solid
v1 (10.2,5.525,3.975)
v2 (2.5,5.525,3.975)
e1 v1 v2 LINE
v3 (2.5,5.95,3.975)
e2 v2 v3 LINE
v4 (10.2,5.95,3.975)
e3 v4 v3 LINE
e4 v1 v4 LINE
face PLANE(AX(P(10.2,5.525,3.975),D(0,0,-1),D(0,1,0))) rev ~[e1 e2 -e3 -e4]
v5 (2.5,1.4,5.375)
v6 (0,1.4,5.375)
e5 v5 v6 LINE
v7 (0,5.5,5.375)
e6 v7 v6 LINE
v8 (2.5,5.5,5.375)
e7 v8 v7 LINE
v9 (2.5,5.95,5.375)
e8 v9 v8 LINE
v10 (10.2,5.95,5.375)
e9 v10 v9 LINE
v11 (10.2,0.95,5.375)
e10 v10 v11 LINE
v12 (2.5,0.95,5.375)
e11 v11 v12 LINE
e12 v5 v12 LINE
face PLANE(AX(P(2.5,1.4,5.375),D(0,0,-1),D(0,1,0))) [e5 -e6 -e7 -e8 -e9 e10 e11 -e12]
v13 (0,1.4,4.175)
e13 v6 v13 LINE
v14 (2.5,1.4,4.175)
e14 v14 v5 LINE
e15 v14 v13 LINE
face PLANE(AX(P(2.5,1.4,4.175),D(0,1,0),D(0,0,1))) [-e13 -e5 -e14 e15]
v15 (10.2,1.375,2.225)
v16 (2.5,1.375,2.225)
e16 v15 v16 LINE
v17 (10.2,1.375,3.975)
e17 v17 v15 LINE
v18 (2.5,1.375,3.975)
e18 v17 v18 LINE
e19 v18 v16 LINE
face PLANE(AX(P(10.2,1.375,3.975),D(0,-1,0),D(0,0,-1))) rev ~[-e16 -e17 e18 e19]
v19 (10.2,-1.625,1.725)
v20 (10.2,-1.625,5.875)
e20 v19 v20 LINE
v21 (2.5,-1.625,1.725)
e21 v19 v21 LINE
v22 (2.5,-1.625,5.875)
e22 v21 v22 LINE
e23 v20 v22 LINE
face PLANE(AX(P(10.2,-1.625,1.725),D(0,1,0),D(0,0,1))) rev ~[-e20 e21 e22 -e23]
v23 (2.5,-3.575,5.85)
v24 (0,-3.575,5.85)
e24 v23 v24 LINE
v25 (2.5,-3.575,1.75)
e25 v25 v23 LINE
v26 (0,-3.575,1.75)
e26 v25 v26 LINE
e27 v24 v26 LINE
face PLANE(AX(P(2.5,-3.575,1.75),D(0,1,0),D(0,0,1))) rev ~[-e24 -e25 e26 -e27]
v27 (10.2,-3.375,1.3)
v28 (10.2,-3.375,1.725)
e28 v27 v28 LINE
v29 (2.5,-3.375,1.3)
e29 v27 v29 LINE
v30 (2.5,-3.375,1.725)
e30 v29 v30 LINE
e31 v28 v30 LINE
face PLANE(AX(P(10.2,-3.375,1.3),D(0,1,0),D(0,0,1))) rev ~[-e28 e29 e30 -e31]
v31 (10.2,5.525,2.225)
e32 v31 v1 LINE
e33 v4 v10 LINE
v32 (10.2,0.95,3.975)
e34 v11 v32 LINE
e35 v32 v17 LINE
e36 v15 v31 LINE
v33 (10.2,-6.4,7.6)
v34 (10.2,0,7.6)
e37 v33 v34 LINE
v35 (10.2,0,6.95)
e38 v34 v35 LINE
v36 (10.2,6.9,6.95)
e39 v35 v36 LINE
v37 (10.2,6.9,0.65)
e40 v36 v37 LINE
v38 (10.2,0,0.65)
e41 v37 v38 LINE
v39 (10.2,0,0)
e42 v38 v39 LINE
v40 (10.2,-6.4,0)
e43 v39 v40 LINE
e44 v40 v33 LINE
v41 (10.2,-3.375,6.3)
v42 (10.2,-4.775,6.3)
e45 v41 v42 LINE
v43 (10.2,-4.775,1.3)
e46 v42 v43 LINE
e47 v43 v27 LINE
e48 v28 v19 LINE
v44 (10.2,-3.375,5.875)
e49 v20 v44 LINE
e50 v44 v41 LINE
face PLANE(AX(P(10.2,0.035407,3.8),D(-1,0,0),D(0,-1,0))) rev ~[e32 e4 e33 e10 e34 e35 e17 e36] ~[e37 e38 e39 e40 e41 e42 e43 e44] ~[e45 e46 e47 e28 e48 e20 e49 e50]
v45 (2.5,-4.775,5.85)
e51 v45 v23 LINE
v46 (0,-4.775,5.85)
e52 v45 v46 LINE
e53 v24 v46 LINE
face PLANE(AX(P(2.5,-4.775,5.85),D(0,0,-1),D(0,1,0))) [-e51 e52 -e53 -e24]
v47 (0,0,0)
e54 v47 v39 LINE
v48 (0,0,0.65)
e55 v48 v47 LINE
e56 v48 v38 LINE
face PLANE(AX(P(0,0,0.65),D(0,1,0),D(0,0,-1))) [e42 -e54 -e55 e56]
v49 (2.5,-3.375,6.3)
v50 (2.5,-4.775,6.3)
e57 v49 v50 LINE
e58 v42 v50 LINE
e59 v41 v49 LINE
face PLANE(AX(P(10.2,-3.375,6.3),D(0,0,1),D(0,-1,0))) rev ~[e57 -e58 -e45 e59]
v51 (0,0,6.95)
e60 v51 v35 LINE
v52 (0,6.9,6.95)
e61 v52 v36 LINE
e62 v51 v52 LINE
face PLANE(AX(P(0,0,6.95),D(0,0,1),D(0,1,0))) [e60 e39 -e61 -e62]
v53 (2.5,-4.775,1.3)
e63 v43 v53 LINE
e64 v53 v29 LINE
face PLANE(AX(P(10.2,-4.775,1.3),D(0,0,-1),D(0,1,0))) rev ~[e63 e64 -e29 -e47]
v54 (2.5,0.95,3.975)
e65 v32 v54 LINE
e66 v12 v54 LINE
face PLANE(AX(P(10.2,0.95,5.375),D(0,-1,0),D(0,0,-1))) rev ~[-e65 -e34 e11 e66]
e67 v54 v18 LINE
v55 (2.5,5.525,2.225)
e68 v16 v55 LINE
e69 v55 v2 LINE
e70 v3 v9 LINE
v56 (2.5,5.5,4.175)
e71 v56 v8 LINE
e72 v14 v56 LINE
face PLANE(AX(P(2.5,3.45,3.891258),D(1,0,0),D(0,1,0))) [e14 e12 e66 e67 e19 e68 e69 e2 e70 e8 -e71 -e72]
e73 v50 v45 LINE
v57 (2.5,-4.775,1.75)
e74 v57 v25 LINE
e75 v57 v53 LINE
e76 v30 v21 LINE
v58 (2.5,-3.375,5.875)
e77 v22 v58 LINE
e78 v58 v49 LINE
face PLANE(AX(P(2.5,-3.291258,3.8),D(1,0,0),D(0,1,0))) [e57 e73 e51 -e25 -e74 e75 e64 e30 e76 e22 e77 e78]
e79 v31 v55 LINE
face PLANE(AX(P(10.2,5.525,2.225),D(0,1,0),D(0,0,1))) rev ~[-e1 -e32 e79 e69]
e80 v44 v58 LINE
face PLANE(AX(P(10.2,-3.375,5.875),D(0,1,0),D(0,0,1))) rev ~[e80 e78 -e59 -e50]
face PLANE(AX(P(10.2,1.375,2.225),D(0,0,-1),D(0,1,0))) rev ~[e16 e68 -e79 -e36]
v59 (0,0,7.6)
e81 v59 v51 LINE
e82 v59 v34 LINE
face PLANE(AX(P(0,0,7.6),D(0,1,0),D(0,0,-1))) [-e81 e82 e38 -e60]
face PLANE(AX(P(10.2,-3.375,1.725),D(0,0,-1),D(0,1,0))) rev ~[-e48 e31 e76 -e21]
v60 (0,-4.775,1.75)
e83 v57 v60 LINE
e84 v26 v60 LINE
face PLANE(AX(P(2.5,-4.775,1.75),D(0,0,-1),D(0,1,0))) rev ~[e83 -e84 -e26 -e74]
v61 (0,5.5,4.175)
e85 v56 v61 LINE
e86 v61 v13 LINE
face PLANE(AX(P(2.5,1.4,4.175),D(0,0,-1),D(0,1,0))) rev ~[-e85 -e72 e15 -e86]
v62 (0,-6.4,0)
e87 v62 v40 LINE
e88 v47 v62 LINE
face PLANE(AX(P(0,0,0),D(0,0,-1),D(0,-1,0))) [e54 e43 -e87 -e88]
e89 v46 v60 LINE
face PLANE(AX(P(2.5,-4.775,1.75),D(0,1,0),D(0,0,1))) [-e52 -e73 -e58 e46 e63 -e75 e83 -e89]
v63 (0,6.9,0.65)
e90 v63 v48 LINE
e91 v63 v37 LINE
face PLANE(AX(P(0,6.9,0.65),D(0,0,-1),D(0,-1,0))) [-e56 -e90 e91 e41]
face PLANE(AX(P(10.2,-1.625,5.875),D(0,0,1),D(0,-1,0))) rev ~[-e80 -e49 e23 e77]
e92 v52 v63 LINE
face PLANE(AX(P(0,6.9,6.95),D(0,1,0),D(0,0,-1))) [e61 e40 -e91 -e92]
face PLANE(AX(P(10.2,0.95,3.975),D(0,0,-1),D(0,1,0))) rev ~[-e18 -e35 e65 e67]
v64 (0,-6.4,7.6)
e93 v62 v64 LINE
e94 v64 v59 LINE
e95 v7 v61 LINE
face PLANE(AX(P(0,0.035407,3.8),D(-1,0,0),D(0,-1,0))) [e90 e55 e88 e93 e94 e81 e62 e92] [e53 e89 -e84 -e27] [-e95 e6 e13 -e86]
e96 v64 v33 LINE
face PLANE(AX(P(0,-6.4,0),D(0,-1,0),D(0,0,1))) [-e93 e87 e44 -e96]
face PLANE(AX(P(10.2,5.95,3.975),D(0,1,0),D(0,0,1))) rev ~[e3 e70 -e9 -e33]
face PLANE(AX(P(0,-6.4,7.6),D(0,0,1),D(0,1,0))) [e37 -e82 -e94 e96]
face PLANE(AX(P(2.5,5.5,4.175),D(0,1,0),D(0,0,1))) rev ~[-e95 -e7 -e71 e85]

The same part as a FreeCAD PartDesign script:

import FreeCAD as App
import Part
import Sketcher
from FreeCAD import Vector


def add_polygon(sketch, points):
    """Adds a closed chain of lines whose ends are joined by coincident constraints."""
    first, n = sketch.GeometryCount, len(points)
    for a, b in zip(points, points[1:] + points[:1]):
        sketch.addGeometry(Part.LineSegment(App.Vector(*a, 0), App.Vector(*b, 0)), False)
    for i in range(n):
        sketch.addConstraint(Sketcher.Constraint("Coincident", first + i, 2, first + (i + 1) % n, 1))

doc = App.newDocument("Part")
body = doc.addObject("PartDesign::Body", "Body")

# Sketch on YZ plane
sketch1 = body.newObject("Sketcher::SketchObject", "Sketch")
sketch1.AttachmentSupport = (doc.getObject("YZ_Plane"), [""])
sketch1.MapMode = "FlatFace"
add_polygon(sketch1, [(0, 7.6), (-6.4, 7.6), (-6.4, 0), (0, 0), (0, 0.65), (6.9, 0.65), (6.9, 6.95), (0, 6.95)])  # lines 0-7
sketch1.addConstraint(Sketcher.Constraint("Horizontal", 0))
sketch1.addConstraint(Sketcher.Constraint("Vertical", 1))
sketch1.addConstraint(Sketcher.Constraint("Horizontal", 2))
sketch1.addConstraint(Sketcher.Constraint("Vertical", 3))
sketch1.addConstraint(Sketcher.Constraint("Horizontal", 4))
sketch1.addConstraint(Sketcher.Constraint("Vertical", 5))
sketch1.addConstraint(Sketcher.Constraint("Horizontal", 6))
sketch1.addConstraint(Sketcher.Constraint("Vertical", 7))
sketch1.addConstraint(Sketcher.Constraint("Coincident", 2, 2, -1, 1))
sketch1.addConstraint(Sketcher.Constraint("PointOnObject", 6, 2, -2))
sketch1.addConstraint(Sketcher.Constraint("Equal", 3, 7))
sketch1.addConstraint(Sketcher.Constraint("DistanceX", 0, 2, 0, 1, 6.4))
sketch1.addConstraint(Sketcher.Constraint("DistanceX", 4, 1, 4, 2, 6.9))
sketch1.addConstraint(Sketcher.Constraint("DistanceY", 1, 2, 1, 1, 7.6))
sketch1.addConstraint(Sketcher.Constraint("DistanceY", 5, 1, 5, 2, 6.3))
pad1 = body.newObject("PartDesign::Pad", "Pad")
pad1.Profile = sketch1
pad1.Length = 10.2

# Sketch on YZ plane
sketch2 = body.newObject("Sketcher::SketchObject", "Sketch001")
sketch2.AttachmentSupport = (doc.getObject("YZ_Plane"), [""])
sketch2.MapMode = "FlatFace"
sketch2.AttachmentOffset = App.Placement(Vector(0, 0, 10.2), App.Rotation())
add_polygon(sketch2, [(-3.375, 1.725), (-1.625, 1.725), (-1.625, 5.875), (-3.375, 5.875), (-3.375, 6.3), (-4.775, 6.3), (-4.775, 1.3), (-3.375, 1.3)])  # lines 0-7
add_polygon(sketch2, [(0.95, 5.375), (0.95, 3.975), (1.375, 3.975), (1.375, 2.225), (5.525, 2.225), (5.525, 3.975), (5.95, 3.975), (5.95, 5.375)])  # lines 8-15
sketch2.addConstraint(Sketcher.Constraint("Horizontal", 0))
sketch2.addConstraint(Sketcher.Constraint("Vertical", 1))
sketch2.addConstraint(Sketcher.Constraint("Horizontal", 2))
sketch2.addConstraint(Sketcher.Constraint("Vertical", 3))
sketch2.addConstraint(Sketcher.Constraint("Horizontal", 4))
sketch2.addConstraint(Sketcher.Constraint("Vertical", 5))
sketch2.addConstraint(Sketcher.Constraint("Horizontal", 6))
sketch2.addConstraint(Sketcher.Constraint("Vertical", 7))
sketch2.addConstraint(Sketcher.Constraint("Vertical", 8))
sketch2.addConstraint(Sketcher.Constraint("Horizontal", 9))
sketch2.addConstraint(Sketcher.Constraint("Vertical", 10))
sketch2.addConstraint(Sketcher.Constraint("Horizontal", 11))
sketch2.addConstraint(Sketcher.Constraint("Vertical", 12))
sketch2.addConstraint(Sketcher.Constraint("Horizontal", 13))
sketch2.addConstraint(Sketcher.Constraint("Vertical", 14))
sketch2.addConstraint(Sketcher.Constraint("Horizontal", 15))
sketch2.addConstraint(Sketcher.Constraint("Horizontal", 9, 2, 12, 2))
sketch2.addConstraint(Sketcher.Constraint("Vertical", 3, 2, 6, 2))
sketch2.addConstraint(Sketcher.Constraint("Equal", 9, 13))
sketch2.addConstraint(Sketcher.Constraint("Equal", 11, 1))
sketch2.addConstraint(Sketcher.Constraint("Equal", 13, 3))
sketch2.addConstraint(Sketcher.Constraint("Equal", 15, 5))
sketch2.addConstraint(Sketcher.Constraint("Equal", 6, 8))
sketch2.addConstraint(Sketcher.Constraint("Equal", 2, 10))
sketch2.addConstraint(Sketcher.Constraint("DistanceX", 15, 2, 15, 1, 5.0))
sketch2.addConstraint(Sketcher.Constraint("DistanceX", 4, 2, 4, 1, 1.4))
sketch2.addConstraint(Sketcher.Constraint("DistanceX", 1, 2, 9, 2, 3.0))
sketch2.addConstraint(Sketcher.Constraint("DistanceX", 0, 1, 0, 2, 1.75))
sketch2.addConstraint(Sketcher.Constraint("DistanceX", 11, 1, 11, 2, 4.15))
sketch2.addConstraint(Sketcher.Constraint("DistanceY", -1, 1, 3, 2, 6.3))
sketch2.addConstraint(Sketcher.Constraint("DistanceY", 8, 2, 1, 2, 1.9))
sketch2.addConstraint(Sketcher.Constraint("DistanceX", -1, 1, 8, 2, 0.95))
pocket1 = body.newObject("PartDesign::Pocket", "Pocket")
pocket1.Profile = sketch2
pocket1.Length = 7.7

# Sketch on YZ plane
sketch3 = body.newObject("Sketcher::SketchObject", "Sketch002")
sketch3.AttachmentSupport = (doc.getObject("YZ_Plane"), [""])
sketch3.MapMode = "FlatFace"
sketch3.AttachmentOffset = App.Placement(Vector(0, 0, 2.5), App.Rotation())
add_polygon(sketch3, [(-4.775, 5.85), (-4.775, 1.75), (-3.575, 1.75), (-3.575, 5.85)])  # lines 0-3
add_polygon(sketch3, [(1.4, 5.375), (1.4, 4.175), (5.5, 4.175), (5.5, 5.375)])  # lines 4-7
sketch3.addConstraint(Sketcher.Constraint("Vertical", 0))
sketch3.addConstraint(Sketcher.Constraint("Horizontal", 1))
sketch3.addConstraint(Sketcher.Constraint("Vertical", 2))
sketch3.addConstraint(Sketcher.Constraint("Horizontal", 3))
sketch3.addConstraint(Sketcher.Constraint("Vertical", 4))
sketch3.addConstraint(Sketcher.Constraint("Horizontal", 5))
sketch3.addConstraint(Sketcher.Constraint("Vertical", 6))
sketch3.addConstraint(Sketcher.Constraint("Horizontal", 7))
sketch3.addConstraint(Sketcher.Constraint("Equal", 7, 0))
sketch3.addConstraint(Sketcher.Constraint("Equal", 3, 4))
sketch3.addConstraint(Sketcher.Constraint("DistanceX", 1, 1, 1, 2, 1.2))
sketch3.addConstraint(Sketcher.Constraint("DistanceX", 5, 1, 5, 2, 4.1))
sketch3.addConstraint(Sketcher.Constraint("DistanceX", -1, 1, 4, 2, 1.4))
sketch3.addConstraint(Sketcher.Constraint("DistanceY", -1, 1, 0, 2, 1.75))
sketch3.addConstraint(Sketcher.Constraint("DistanceX", 0, 2, -1, 1, 4.775))
sketch3.addConstraint(Sketcher.Constraint("DistanceY", -1, 1, 4, 2, 4.175))
pocket2 = body.newObject("PartDesign::Pocket", "Pocket001")
pocket2.Profile = sketch3
pocket2.Length = 4

doc.recompute()
